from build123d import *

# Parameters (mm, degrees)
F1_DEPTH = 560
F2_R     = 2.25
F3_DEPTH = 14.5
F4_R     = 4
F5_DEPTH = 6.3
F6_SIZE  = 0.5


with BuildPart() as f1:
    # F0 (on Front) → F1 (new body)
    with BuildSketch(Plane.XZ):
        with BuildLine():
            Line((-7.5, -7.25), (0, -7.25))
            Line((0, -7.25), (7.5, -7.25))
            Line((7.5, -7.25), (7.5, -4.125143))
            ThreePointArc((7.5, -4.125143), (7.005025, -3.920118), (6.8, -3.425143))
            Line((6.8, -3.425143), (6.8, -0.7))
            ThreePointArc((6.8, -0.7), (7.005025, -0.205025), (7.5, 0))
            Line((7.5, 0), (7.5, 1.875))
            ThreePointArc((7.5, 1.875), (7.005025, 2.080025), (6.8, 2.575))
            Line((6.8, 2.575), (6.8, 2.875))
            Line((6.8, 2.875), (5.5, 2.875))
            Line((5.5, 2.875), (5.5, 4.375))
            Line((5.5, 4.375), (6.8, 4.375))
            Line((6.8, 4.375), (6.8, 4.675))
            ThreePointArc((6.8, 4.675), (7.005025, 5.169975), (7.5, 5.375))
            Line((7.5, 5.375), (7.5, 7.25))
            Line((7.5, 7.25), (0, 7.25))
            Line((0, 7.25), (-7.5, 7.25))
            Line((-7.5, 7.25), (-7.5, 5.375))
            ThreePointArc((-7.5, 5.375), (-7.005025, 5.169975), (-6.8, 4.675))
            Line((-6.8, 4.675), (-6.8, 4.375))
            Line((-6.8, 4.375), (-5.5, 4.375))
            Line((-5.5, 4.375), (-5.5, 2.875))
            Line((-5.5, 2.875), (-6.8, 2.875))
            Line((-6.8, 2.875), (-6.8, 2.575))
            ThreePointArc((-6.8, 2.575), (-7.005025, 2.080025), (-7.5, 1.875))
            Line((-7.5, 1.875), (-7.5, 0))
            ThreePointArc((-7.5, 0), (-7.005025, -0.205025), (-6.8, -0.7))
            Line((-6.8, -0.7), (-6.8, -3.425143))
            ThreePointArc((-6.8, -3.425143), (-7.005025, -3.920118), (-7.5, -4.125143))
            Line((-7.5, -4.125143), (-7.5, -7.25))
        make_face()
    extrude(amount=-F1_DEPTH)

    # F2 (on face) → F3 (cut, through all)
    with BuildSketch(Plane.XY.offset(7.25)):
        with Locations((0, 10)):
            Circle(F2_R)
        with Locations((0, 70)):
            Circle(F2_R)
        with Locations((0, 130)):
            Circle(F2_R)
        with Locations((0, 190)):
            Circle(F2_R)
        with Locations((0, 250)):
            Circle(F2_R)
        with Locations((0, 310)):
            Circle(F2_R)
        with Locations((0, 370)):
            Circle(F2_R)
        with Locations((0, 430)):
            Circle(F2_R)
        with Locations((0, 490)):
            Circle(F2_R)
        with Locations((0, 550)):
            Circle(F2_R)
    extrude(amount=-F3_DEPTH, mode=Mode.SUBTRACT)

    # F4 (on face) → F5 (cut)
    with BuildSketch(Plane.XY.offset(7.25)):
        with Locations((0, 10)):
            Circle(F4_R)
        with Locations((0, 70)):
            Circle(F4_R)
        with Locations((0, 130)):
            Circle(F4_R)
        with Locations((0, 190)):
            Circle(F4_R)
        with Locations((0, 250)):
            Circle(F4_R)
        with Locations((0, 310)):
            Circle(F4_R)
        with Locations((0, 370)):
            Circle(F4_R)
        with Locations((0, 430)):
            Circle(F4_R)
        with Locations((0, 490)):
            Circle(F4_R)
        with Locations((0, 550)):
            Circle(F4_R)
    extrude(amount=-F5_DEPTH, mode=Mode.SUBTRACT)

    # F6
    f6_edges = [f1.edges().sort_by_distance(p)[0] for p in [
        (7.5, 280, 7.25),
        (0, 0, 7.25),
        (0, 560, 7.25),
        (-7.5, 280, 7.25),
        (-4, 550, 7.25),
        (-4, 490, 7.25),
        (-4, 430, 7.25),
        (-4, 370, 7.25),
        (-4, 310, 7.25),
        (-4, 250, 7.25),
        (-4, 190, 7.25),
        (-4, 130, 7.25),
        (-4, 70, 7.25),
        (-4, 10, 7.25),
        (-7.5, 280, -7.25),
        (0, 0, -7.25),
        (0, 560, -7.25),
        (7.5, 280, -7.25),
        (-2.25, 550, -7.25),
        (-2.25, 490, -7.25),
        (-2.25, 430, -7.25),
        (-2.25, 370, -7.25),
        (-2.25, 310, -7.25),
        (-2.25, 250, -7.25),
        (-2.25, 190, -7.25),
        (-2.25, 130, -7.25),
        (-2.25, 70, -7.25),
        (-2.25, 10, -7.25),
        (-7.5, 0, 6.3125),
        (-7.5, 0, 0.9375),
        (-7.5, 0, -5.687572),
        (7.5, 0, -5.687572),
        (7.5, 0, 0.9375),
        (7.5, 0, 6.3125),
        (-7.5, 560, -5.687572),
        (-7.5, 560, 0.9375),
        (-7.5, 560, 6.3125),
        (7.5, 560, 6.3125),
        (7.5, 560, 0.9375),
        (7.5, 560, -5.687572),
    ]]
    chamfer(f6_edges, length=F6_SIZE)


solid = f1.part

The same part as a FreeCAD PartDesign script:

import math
import FreeCAD as App
import Part
import Sketcher
Q = App.Units.Quantity


def edges_at(feature, points):
    """Names of the edges that pass closest to the given points."""
    edges = feature.Shape.Edges
    near = lambda p: min(range(len(edges)), key=lambda i: edges[i].distToShape(Part.Vertex(*p))[0])
    return sorted({f"Edge{near(p) + 1}" for p in points})

doc = App.newDocument("Part")
body = doc.addObject("PartDesign::Body", "Body")

# Sketch on XZ plane
sketch1 = body.newObject("Sketcher::SketchObject", "Sketch")
sketch1.AttachmentSupport = (doc.getObject("XZ_Plane"), [""])
sketch1.MapMode = "FlatFace"
sketch1.addGeometry(Part.LineSegment(App.Vector(-7.5, -7.25, 0), App.Vector(7.5, -7.25, 0)), False)
sketch1.addGeometry(Part.LineSegment(App.Vector(7.5, -7.25, 0), App.Vector(7.5, -4.13, 0)), False)
sketch1.addGeometry(Part.ArcOfCircle(Part.Circle(App.Vector(7.5, -3.43, 0), App.Vector(0, 0, 1), 0.7), math.radians(180), math.radians(270)), False)
sketch1.addGeometry(Part.LineSegment(App.Vector(6.8, -3.43, 0), App.Vector(6.8, -0.7, 0)), False)
sketch1.addGeometry(Part.ArcOfCircle(Part.Circle(App.Vector(7.5, -0.7, 0), App.Vector(0, 0, 1), 0.7), math.radians(90), math.radians(180)), False)
sketch1.addGeometry(Part.LineSegment(App.Vector(7.5, 0, 0), App.Vector(7.5, 1.88, 0)), False)
sketch1.addGeometry(Part.ArcOfCircle(Part.Circle(App.Vector(7.5, 2.57, 0), App.Vector(0, 0, 1), 0.7), math.radians(180), math.radians(270)), False)
sketch1.addGeometry(Part.LineSegment(App.Vector(6.8, 2.58, 0), App.Vector(6.8, 2.88, 0)), False)
sketch1.addGeometry(Part.LineSegment(App.Vector(6.8, 2.88, 0), App.Vector(5.5, 2.88, 0)), False)
sketch1.addGeometry(Part.LineSegment(App.Vector(5.5, 2.88, 0), App.Vector(5.5, 4.38, 0)), False)
sketch1.addGeometry(Part.LineSegment(App.Vector(5.5, 4.38, 0), App.Vector(6.8, 4.38, 0)), False)
sketch1.addGeometry(Part.LineSegment(App.Vector(6.8, 4.38, 0), App.Vector(6.8, 4.67, 0)), False)
sketch1.addGeometry(Part.ArcOfCircle(Part.Circle(App.Vector(7.5, 4.68, 0), App.Vector(0, 0, 1), 0.7), math.radians(90), math.radians(180)), False)
sketch1.addGeometry(Part.LineSegment(App.Vector(7.5, 5.38, 0), App.Vector(7.5, 7.25, 0)), False)
sketch1.addGeometry(Part.LineSegment(App.Vector(7.5, 7.25, 0), App.Vector(-7.5, 7.25, 0)), False)
sketch1.addGeometry(Part.LineSegment(App.Vector(-7.5, 7.25, 0), App.Vector(-7.5, 5.38, 0)), False)
sketch1.addGeometry(Part.ArcOfCircle(Part.Circle(App.Vector(-7.5, 4.68, 0), App.Vector(0, 0, 1), 0.7), math.radians(0), math.radians(90)), False)
sketch1.addGeometry(Part.LineSegment(App.Vector(-6.8, 4.67, 0), App.Vector(-6.8, 4.38, 0)), False)
sketch1.addGeometry(Part.LineSegment(App.Vector(-6.8, 4.38, 0), App.Vector(-5.5, 4.38, 0)), False)
sketch1.addGeometry(Part.LineSegment(App.Vector(-5.5, 4.38, 0), App.Vector(-5.5, 2.88, 0)), False)
sketch1.addGeometry(Part.LineSegment(App.Vector(-5.5, 2.88, 0), App.Vector(-6.8, 2.88, 0)), False)
sketch1.addGeometry(Part.LineSegment(App.Vector(-6.8, 2.88, 0), App.Vector(-6.8, 2.58, 0)), False)
sketch1.addGeometry(Part.ArcOfCircle(Part.Circle(App.Vector(-7.5, 2.57, 0), App.Vector(0, 0, 1), 0.7), math.radians(-90), math.radians(0)), False)
sketch1.addGeometry(Part.LineSegment(App.Vector(-7.5, 1.88, 0), App.Vector(-7.5, 0, 0)), False)
sketch1.addGeometry(Part.ArcOfCircle(Part.Circle(App.Vector(-7.5, -0.7, 0), App.Vector(0, 0, 1), 0.7), math.radians(0), math.radians(90)), False)
sketch1.addGeometry(Part.LineSegment(App.Vector(-6.8, -0.7, 0), App.Vector(-6.8, -3.43, 0)), False)
sketch1.addGeometry(Part.ArcOfCircle(Part.Circle(App.Vector(-7.5, -3.43, 0), App.Vector(0, 0, 1), 0.7), math.radians(-90), math.radians(0)), False)
sketch1.addGeometry(Part.LineSegment(App.Vector(-7.5, -4.13, 0), App.Vector(-7.5, -7.25, 0)), False)
sketch1.addConstraint(Sketcher.Constraint("Coincident", 0, 2, 1, 1))
sketch1.addConstraint(Sketcher.Constraint("Coincident", 1, 2, 2, 2))
sketch1.addConstraint(Sketcher.Constraint("Tangent", 2, 1, 3, 1))
sketch1.addConstraint(Sketcher.Constraint("Tangent", 3, 2, 4, 2))
sketch1.addConstraint(Sketcher.Constraint("Coincident", 4, 1, 5, 1))
sketch1.addConstraint(Sketcher.Constraint("Coincident", 5, 2, 6, 2))
sketch1.addConstraint(Sketcher.Constraint("Tangent", 6, 1, 7, 1))
sketch1.addConstraint(Sketcher.Constraint("Coincident", 7, 2, 8, 1))
sketch1.addConstraint(Sketcher.Constraint("Coincident", 8, 2, 9, 1))
sketch1.addConstraint(Sketcher.Constraint("Coincident", 9, 2, 10, 1))
sketch1.addConstraint(Sketcher.Constraint("Coincident", 10, 2, 11, 1))
sketch1.addConstraint(Sketcher.Constraint("Tangent", 11, 2, 12, 2))
sketch1.addConstraint(Sketcher.Constraint("Coincident", 12, 1, 13, 1))
sketch1.addConstraint(Sketcher.Constraint("Coincident", 13, 2, 14, 1))
sketch1.addConstraint(Sketcher.Constraint("Coincident", 14, 2, 15, 1))
sketch1.addConstraint(Sketcher.Constraint("Coincident", 15, 2, 16, 2))
sketch1.addConstraint(Sketcher.Constraint("Tangent", 16, 1, 17, 1))
sketch1.addConstraint(Sketcher.Constraint("Coincident", 17, 2, 18, 1))
sketch1.addConstraint(Sketcher.Constraint("Coincident", 18, 2, 19, 1))
sketch1.addConstraint(Sketcher.Constraint("Coincident", 19, 2, 20, 1))
sketch1.addConstraint(Sketcher.Constraint("Coincident", 20, 2, 21, 1))
sketch1.addConstraint(Sketcher.Constraint("Tangent", 21, 2, 22, 2))
sketch1.addConstraint(Sketcher.Constraint("Coincident", 22, 1, 23, 1))
sketch1.addConstraint(Sketcher.Constraint("Coincident", 23, 2, 24, 2))
sketch1.addConstraint(Sketcher.Constraint("Tangent", 24, 1, 25, 1))
sketch1.addConstraint(Sketcher.Constraint("Tangent", 25, 2, 26, 2))
sketch1.addConstraint(Sketcher.Constraint("Coincident", 26, 1, 27, 1))
sketch1.addConstraint(Sketcher.Constraint("Coincident", 27, 2, 0, 1))
sketch1.addConstraint(Sketcher.Constraint("Horizontal", 0))
sketch1.addConstraint(Sketcher.Constraint("Vertical", 1))
sketch1.addConstraint(Sketcher.Constraint("Vertical", 3))
sketch1.addConstraint(Sketcher.Constraint("Vertical", 5))
sketch1.addConstraint(Sketcher.Constraint("Vertical", 7))
sketch1.addConstraint(Sketcher.Constraint("Horizontal", 8))
sketch1.addConstraint(Sketcher.Constraint("Vertical", 9))
sketch1.addConstraint(Sketcher.Constraint("Horizontal", 10))
sketch1.addConstraint(Sketcher.Constraint("Vertical", 11))
sketch1.addConstraint(Sketcher.Constraint("Vertical", 13))
sketch1.addConstraint(Sketcher.Constraint("Horizontal", 14))
sketch1.addConstraint(Sketcher.Constraint("Vertical", 15))
sketch1.addConstraint(Sketcher.Constraint("Vertical", 17))
sketch1.addConstraint(Sketcher.Constraint("Horizontal", 18))
sketch1.addConstraint(Sketcher.Constraint("Vertical", 19))
sketch1.addConstraint(Sketcher.Constraint("Horizontal", 20))
sketch1.addConstraint(Sketcher.Constraint("Vertical", 21))
sketch1.addConstraint(Sketcher.Constraint("Vertical", 23))
sketch1.addConstraint(Sketcher.Constraint("Vertical", 25))
sketch1.addConstraint(Sketcher.Constraint("Vertical", 27))
sketch1.addConstraint(Sketcher.Constraint("Equal", 2, 4))
sketch1.addConstraint(Sketcher.Constraint("Equal", 4, 6))
sketch1.addConstraint(Sketcher.Constraint("Equal", 6, 12))
sketch1.addConstraint(Sketcher.Constraint("Equal", 12, 16))
sketch1.addConstraint(Sketcher.Constraint("Equal", 16, 22))
sketch1.addConstraint(Sketcher.Constraint("Equal", 22, 24))
sketch1.addConstraint(Sketcher.Constraint("Equal", 24, 26))
sketch1.addConstraint(Sketcher.Constraint("Symmetric", 0, 2, 14, 2, -1, 1))
sketch1.addConstraint(Sketcher.Constraint("Symmetric", 4, 1, 23, 2, -1, 1))
sketch1.addConstraint(Sketcher.Constraint("Symmetric", 12, 3, 16, 3, -2))
sketch1.addConstraint(Sketcher.Constraint("Symmetric", 6, 3, 22, 3, -2))
sketch1.addConstraint(Sketcher.Constraint("Symmetric", 4, 3, 24, 3, -2))
sketch1.addConstraint(Sketcher.Constraint("Symmetric", 9, 2, 18, 2, -2))
sketch1.addConstraint(Sketcher.Constraint("Symmetric", 1, 2, 26, 1, -2))
sketch1.addConstraint(Sketcher.Constraint("Horizontal", 8, 2, 19, 2))
sketch1.addConstraint(Sketcher.Constraint("Vertical", 4, 3, 6, 3))
sketch1.addConstraint(Sketcher.Constraint("Vertical", 6, 3, 12, 3))
sketch1.addConstraint(Sketcher.Constraint("Vertical", 12, 3, 0, 2))
sketch1.addConstraint(Sketcher.Constraint("Vertical", 1, 2, 4, 1))
sketch1.addConstraint(Sketcher.Constraint("Vertical", 5, 2, 12, 1))
sketch1.addConstraint(Sketcher.Constraint("Equal", 7, 11))
sketch1.addConstraint(Sketcher.Constraint("Equal", 5, 13))
sketch1.addConstraint(Sketcher.Constraint("Radius", 2, Q("0.699999 mm")))
sketch1.addConstraint(Sketcher.Constraint("DistanceX", 0, 1, 0, 2, Q("15 mm")))
sketch1.addConstraint(Sketcher.Constraint("DistanceX", 8, 2, 8, 1, Q("1.3 mm")))
sketch1.addConstraint(Sketcher.Constraint("DistanceY", 7, 1, 7, 2, Q("0.3 mm")))
sketch1.addConstraint(Sketcher.Constraint("DistanceY", 9, 1, 9, 2, Q("1.5 mm")))
sketch1.addConstraint(Sketcher.Constraint("DistanceY", 5, 1, 5, 2, Q("1.875 mm")))
sketch1.addConstraint(Sketcher.Constraint("DistanceY", 1, 1, 1, 2, Q("3.124857 mm")))
pad1 = body.newObject("PartDesign::Pad", "Pad")
pad1.Profile = sketch1
pad1.Length = 560
pad1.Reversed = True

# Sketch on XY plane
sketch2 = body.newObject("Sketcher::SketchObject", "Sketch001")
sketch2.AttachmentSupport = (doc.getObject("XY_Plane"), [""])
sketch2.MapMode = "FlatFace"
sketch2.AttachmentOffset = App.Placement(App.Vector(0, 0, 7.25), App.Rotation())
sketch2.addGeometry(Part.Circle(App.Vector(0, 10, 0), App.Vector(0, 0, 1), 2.2), False)
sketch2.addGeometry(Part.Circle(App.Vector(0, 70, 0), App.Vector(0, 0, 1), 2.2), False)
sketch2.addGeometry(Part.Circle(App.Vector(0, 130, 0), App.Vector(0, 0, 1), 2.2), False)
sketch2.addGeometry(Part.Circle(App.Vector(0, 190, 0), App.Vector(0, 0, 1), 2.2), False)
sketch2.addGeometry(Part.Circle(App.Vector(0, 250, 0), App.Vector(0, 0, 1), 2.2), False)
sketch2.addGeometry(Part.Circle(App.Vector(0, 310, 0), App.Vector(0, 0, 1), 2.2), False)
sketch2.addGeometry(Part.Circle(App.Vector(0, 370, 0), App.Vector(0, 0, 1), 2.2), False)
sketch2.addGeometry(Part.Circle(App.Vector(0, 430, 0), App.Vector(0, 0, 1), 2.2), False)
sketch2.addGeometry(Part.Circle(App.Vector(0, 490, 0), App.Vector(0, 0, 1), 2.2), False)
sketch2.addGeometry(Part.Circle(App.Vector(0, 550, 0), App.Vector(0, 0, 1), 2.2), False)
sketch2.addConstraint(Sketcher.Constraint("Equal", 0, 1))
sketch2.addConstraint(Sketcher.Constraint("Equal", 1, 2))
sketch2.addConstraint(Sketcher.Constraint("Equal", 2, 3))
sketch2.addConstraint(Sketcher.Constraint("Equal", 3, 4))
sketch2.addConstraint(Sketcher.Constraint("Equal", 4, 5))
sketch2.addConstraint(Sketcher.Constraint("Equal", 5, 6))
sketch2.addConstraint(Sketcher.Constraint("Equal", 6, 7))
sketch2.addConstraint(Sketcher.Constraint("Equal", 7, 8))
sketch2.addConstraint(Sketcher.Constraint("Equal", 8, 9))
sketch2.addConstraint(Sketcher.Constraint("PointOnObject", 0, 3, -2))
sketch2.addConstraint(Sketcher.Constraint("PointOnObject", 1, 3, -2))
sketch2.addConstraint(Sketcher.Constraint("PointOnObject", 2, 3, -2))
sketch2.addConstraint(Sketcher.Constraint("PointOnObject", 3, 3, -2))
sketch2.addConstraint(Sketcher.Constraint("PointOnObject", 4, 3, -2))
sketch2.addConstraint(Sketcher.Constraint("PointOnObject", 5, 3, -2))
sketch2.addConstraint(Sketcher.Constraint("PointOnObject", 6, 3, -2))
sketch2.addConstraint(Sketcher.Constraint("PointOnObject", 7, 3, -2))
sketch2.addConstraint(Sketcher.Constraint("PointOnObject", 8, 3, -2))
sketch2.addConstraint(Sketcher.Constraint("PointOnObject", 9, 3, -2))
sketch2.addConstraint(Sketcher.Constraint("Diameter", 0, Q("4.5 mm")))
sketch2.addConstraint(Sketcher.Constraint("DistanceY", -1, 1, 0, 3, Q("10 mm")))
sketch2.addConstraint(Sketcher.Constraint("DistanceY", -1, 1, 1, 3, Q("70 mm")))
sketch2.addConstraint(Sketcher.Constraint("DistanceY", -1, 1, 2, 3, Q("130 mm")))
sketch2.addConstraint(Sketcher.Constraint("DistanceY", -1, 1, 3, 3, Q("190 mm")))
sketch2.addConstraint(Sketcher.Constraint("DistanceY", -1, 1, 4, 3, Q("250 mm")))
sketch2.addConstraint(Sketcher.Constraint("DistanceY", -1, 1, 5, 3, Q("310 mm")))
sketch2.addConstraint(Sketcher.Constraint("DistanceY", -1, 1, 6, 3, Q("370 mm")))
sketch2.addConstraint(Sketcher.Constraint("DistanceY", -1, 1, 7, 3, Q("430 mm")))
sketch2.addConstraint(Sketcher.Constraint("DistanceY", -1, 1, 8, 3, Q("490 mm")))
sketch2.addConstraint(Sketcher.Constraint("DistanceY", -1, 1, 9, 3, Q("550 mm")))
pocket1 = body.newObject("PartDesign::Pocket", "Pocket")
pocket1.Profile = sketch2
pocket1.Type = "ThroughAll"

# Sketch on XY plane
sketch3 = body.newObject("Sketcher::SketchObject", "Sketch002")
sketch3.AttachmentSupport = (doc.getObject("XY_Plane"), [""])
sketch3.MapMode = "FlatFace"
sketch3.AttachmentOffset = App.Placement(App.Vector(0, 0, 7.25), App.Rotation())
sketch3.addGeometry(Part.Circle(App.Vector(0, 10, 0), App.Vector(0, 0, 1), 4), False)
sketch3.addGeometry(Part.Circle(App.Vector(0, 70, 0), App.Vector(0, 0, 1), 4), False)
sketch3.addGeometry(Part.Circle(App.Vector(0, 130, 0), App.Vector(0, 0, 1), 4), False)
sketch3.addGeometry(Part.Circle(App.Vector(0, 190, 0), App.Vector(0, 0, 1), 4), False)
sketch3.addGeometry(Part.Circle(App.Vector(0, 250, 0), App.Vector(0, 0, 1), 4), False)
sketch3.addGeometry(Part.Circle(App.Vector(0, 310, 0), App.Vector(0, 0, 1), 4), False)
sketch3.addGeometry(Part.Circle(App.Vector(0, 370, 0), App.Vector(0, 0, 1), 4), False)
sketch3.addGeometry(Part.Circle(App.Vector(0, 430, 0), App.Vector(0, 0, 1), 4), False)
sketch3.addGeometry(Part.Circle(App.Vector(0, 490, 0), App.Vector(0, 0, 1), 4), False)
sketch3.addGeometry(Part.Circle(App.Vector(0, 550, 0), App.Vector(0, 0, 1), 4), False)
sketch3.addConstraint(Sketcher.Constraint("Equal", 0, 1))
sketch3.addConstraint(Sketcher.Constraint("Equal", 1, 2))
sketch3.addConstraint(Sketcher.Constraint("Equal", 2, 3))
sketch3.addConstraint(Sketcher.Constraint("Equal", 3, 4))
sketch3.addConstraint(Sketcher.Constraint("Equal", 4, 5))
sketch3.addConstraint(Sketcher.Constraint("Equal", 5, 6))
sketch3.addConstraint(Sketcher.Constraint("Equal", 6, 7))
sketch3.addConstraint(Sketcher.Constraint("Equal", 7, 8))
sketch3.addConstraint(Sketcher.Constraint("Equal", 8, 9))
sketch3.addConstraint(Sketcher.Constraint("PointOnObject", 0, 3, -2))
sketch3.addConstraint(Sketcher.Constraint("PointOnObject", 1, 3, -2))
sketch3.addConstraint(Sketcher.Constraint("PointOnObject", 2, 3, -2))
sketch3.addConstraint(Sketcher.Constraint("PointOnObject", 3, 3, -2))
sketch3.addConstraint(Sketcher.Constraint("PointOnObject", 4, 3, -2))
sketch3.addConstraint(Sketcher.Constraint("PointOnObject", 5, 3, -2))
sketch3.addConstraint(Sketcher.Constraint("PointOnObject", 6, 3, -2))
sketch3.addConstraint(Sketcher.Constraint("PointOnObject", 7, 3, -2))
sketch3.addConstraint(Sketcher.Constraint("PointOnObject", 8, 3, -2))
sketch3.addConstraint(Sketcher.Constraint("PointOnObject", 9, 3, -2))
sketch3.addConstraint(Sketcher.Constraint("Diameter", 0, Q("8 mm")))
sketch3.addConstraint(Sketcher.Constraint("DistanceY", -1, 1, 0, 3, Q("10 mm")))
sketch3.addConstraint(Sketcher.Constraint("DistanceY", -1, 1, 1, 3, Q("70 mm")))
sketch3.addConstraint(Sketcher.Constraint("DistanceY", -1, 1, 2, 3, Q("130 mm")))
sketch3.addConstraint(Sketcher.Constraint("DistanceY", -1, 1, 3, 3, Q("190 mm")))
sketch3.addConstraint(Sketcher.Constraint("DistanceY", -1, 1, 4, 3, Q("250 mm")))
sketch3.addConstraint(Sketcher.Constraint("DistanceY", -1, 1, 5, 3, Q("310 mm")))
sketch3.addConstraint(Sketcher.Constraint("DistanceY", -1, 1, 6, 3, Q("370 mm")))
sketch3.addConstraint(Sketcher.Constraint("DistanceY", -1, 1, 7, 3, Q("430 mm")))
sketch3.addConstraint(Sketcher.Constraint("DistanceY", -1, 1, 8, 3, Q("490 mm")))
sketch3.addConstraint(Sketcher.Constraint("DistanceY", -1, 1, 9, 3, Q("550 mm")))
pocket2 = body.newObject("PartDesign::Pocket", "Pocket001")
pocket2.Profile = sketch3
pocket2.Length = 6.3
doc.recompute()

chamfer = body.newObject("PartDesign::Chamfer", "Chamfer")
chamfer.Base = (pocket2, edges_at(pocket2, [
    (7.5, 280, 7.25),
    (0, 0, 7.25),
    (0, 560, 7.25),
    (-7.5, 280, 7.25),
    (-4, 550, 7.25),
    (-4, 490, 7.25),
    (-4, 430, 7.25),
    (-4, 370, 7.25),
    (-4, 310, 7.25),
    (-4, 250, 7.25),
    (-4, 190, 7.25),
    (-4, 130, 7.25),
    (-4, 70, 7.25),
    (-4, 10, 7.25),
    (-7.5, 280, -7.25),
    (0, 0, -7.25),
    (0, 560, -7.25),
    (7.5, 280, -7.25),
    (-2.25, 550, -7.25),
    (-2.25, 490, -7.25),
    (-2.25, 430, -7.25),
    (-2.25, 370, -7.25),
    (-2.25, 310, -7.25),
    (-2.25, 250, -7.25),
    (-2.25, 190, -7.25),
    (-2.25, 130, -7.25),
    (-2.25, 70, -7.25),
    (-2.25, 10, -7.25),
    (-7.5, 0, 6.312),
    (-7.5, 0, 0.938),
    (-7.5, 0, -5.688),
    (7.5, 0, -5.688),
    (7.5, 0, 0.938),
    (7.5, 0, 6.312),
    (-7.5, 560, -5.688),
    (-7.5, 560, 0.938),
    (-7.5, 560, 6.312),
    (7.5, 560, 6.312),
    (7.5, 560, 0.938),
    (7.5, 560, -5.688),
]))
chamfer.Size = 0.5

doc.recompute()
